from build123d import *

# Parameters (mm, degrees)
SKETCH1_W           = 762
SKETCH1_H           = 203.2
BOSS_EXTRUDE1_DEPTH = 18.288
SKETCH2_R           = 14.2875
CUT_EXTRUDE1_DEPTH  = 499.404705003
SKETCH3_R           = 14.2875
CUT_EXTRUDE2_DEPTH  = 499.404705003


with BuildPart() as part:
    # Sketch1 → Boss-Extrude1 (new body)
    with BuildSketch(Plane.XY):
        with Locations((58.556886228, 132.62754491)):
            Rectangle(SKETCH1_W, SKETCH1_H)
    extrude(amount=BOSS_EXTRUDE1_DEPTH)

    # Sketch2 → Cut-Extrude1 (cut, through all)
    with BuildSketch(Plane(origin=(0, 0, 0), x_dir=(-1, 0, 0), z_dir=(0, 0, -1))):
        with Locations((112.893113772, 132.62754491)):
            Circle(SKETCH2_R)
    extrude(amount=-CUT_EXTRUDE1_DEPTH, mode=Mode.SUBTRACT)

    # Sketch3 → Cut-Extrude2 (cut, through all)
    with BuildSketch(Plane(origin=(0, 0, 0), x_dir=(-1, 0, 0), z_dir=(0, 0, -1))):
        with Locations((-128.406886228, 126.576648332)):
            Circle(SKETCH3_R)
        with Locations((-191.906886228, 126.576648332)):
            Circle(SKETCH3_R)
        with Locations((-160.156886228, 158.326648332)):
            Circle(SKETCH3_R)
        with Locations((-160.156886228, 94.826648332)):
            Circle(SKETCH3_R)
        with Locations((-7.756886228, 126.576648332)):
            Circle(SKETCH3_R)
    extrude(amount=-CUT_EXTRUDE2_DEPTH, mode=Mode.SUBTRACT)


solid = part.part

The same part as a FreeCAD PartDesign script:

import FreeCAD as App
import Part
import Sketcher

V = App.Vector
Q = App.Units.Quantity


def add_polygon(sketch, points):
    """Adds a closed chain of lines whose ends are joined by coincident constraints."""
    first, n = sketch.GeometryCount, len(points)
    for a, b in zip(points, points[1:] + points[:1]):
        sketch.addGeometry(Part.LineSegment(App.Vector(*a, 0), App.Vector(*b, 0)), False)
    for i in range(n):
        sketch.addConstraint(Sketcher.Constraint("Coincident", first + i, 2, first + (i + 1) % n, 1))

doc = App.newDocument("Part")
body = doc.addObject("PartDesign::Body", "Body")

sketch1 = doc.addObject("Sketcher::SketchObject", "Sketch")
body.addObject(sketch1)
sketch1.AttachmentSupport = (doc.XY_Plane, [""])
sketch1.MapMode = "FlatFace"
add_polygon(sketch1, [(-322, 234), (-322, 31), (440, 31), (440, 234)])
sketch1.addConstraint([
    Sketcher.Constraint("Vertical", 0),
    Sketcher.Constraint("Horizontal", 1),
    Sketcher.Constraint("Vertical", 2),
    Sketcher.Constraint("Horizontal", 3),
    Sketcher.Constraint("DistanceX", 1, 1, 1, 2, Q("30 in")),
    Sketcher.Constraint("DistanceY", 0, 2, 0, 1, Q("8 in")),
    Sketcher.Constraint("DistanceX", 0, 2, -1, 1, 322.443114),
    Sketcher.Constraint("DistanceY", -1, 1, 0, 2, 31.027545),
])
pad1 = doc.addObject("PartDesign::Pad", "Pad")
body.addObject(pad1)
pad1.Profile = sketch1
pad1.Length = Q("0.72 in")

sketch2 = doc.addObject("Sketcher::SketchObject", "Sketch001")
body.addObject(sketch2)
sketch2.AttachmentSupport = (doc.XY_Plane, [""])
sketch2.MapMode = "FlatFace"
sketch2.addGeometry(Part.Circle(V(-113, 133, 0), V(0, 0, 1), 14), False)
sketch2.addConstraint([
    Sketcher.Constraint("Diameter", 0, Q("1.125 in")),
    Sketcher.Constraint("DistanceX", 0, 3, -1, 1, 112.893114),
    Sketcher.Constraint("DistanceY", -1, 1, 0, 3, 132.627545),
])
pocket1 = doc.addObject("PartDesign::Pocket", "Pocket")
body.addObject(pocket1)
pocket1.Profile = sketch2
pocket1.Type = "ThroughAll"
pocket1.Reversed = True

sketch3 = doc.addObject("Sketcher::SketchObject", "Sketch002")
body.addObject(sketch3)
sketch3.AttachmentSupport = (doc.XY_Plane, [""])
sketch3.MapMode = "FlatFace"
sketch3.addGeometry([
    Part.Circle(V(128, 127, 0), V(0, 0, 1), 14),
    Part.Circle(V(192, 127, 0), V(0, 0, 1), 14),
    Part.Circle(V(160, 158, 0), V(0, 0, 1), 14),
    Part.Circle(V(160, 95, 0), V(0, 0, 1), 14),
    Part.Circle(V(8, 127, 0), V(0, 0, 1), 14),
], False)
sketch3.addConstraint([
    Sketcher.Constraint("Equal", 0, 1),
    Sketcher.Constraint("Equal", 1, 2),
    Sketcher.Constraint("Equal", 2, 3),
    Sketcher.Constraint("Equal", 3, 4),
    Sketcher.Constraint("Horizontal", 0, 3, 1, 3),
    Sketcher.Constraint("Horizontal", 1, 3, 4, 3),
    Sketcher.Constraint("Vertical", 2, 3, 3, 3),
    Sketcher.Constraint("Diameter", 0, Q("1.125 in")),
    Sketcher.Constraint("DistanceX", 4, 3, 2, 3, Q("6 in")),
    Sketcher.Constraint("DistanceX", 0, 3, 1, 3, Q("2.5 in")),
    Sketcher.Constraint("DistanceY", 3, 3, 2, 3, Q("2.5 in")),
    Sketcher.Constraint("DistanceX", 0, 3, 2, 3, Q("1.25 in")),
    Sketcher.Constraint("DistanceY", 0, 3, 2, 3, Q("1.25 in")),
    Sketcher.Constraint("DistanceY", -1, 1, 0, 3, 126.576648),
    Sketcher.Constraint("DistanceX", -1, 1, 0, 3, 128.406886),
])
pocket2 = doc.addObject("PartDesign::Pocket", "Pocket001")
body.addObject(pocket2)
pocket2.Profile = sketch3
pocket2.Type = "ThroughAll"
pocket2.Reversed = True

doc.recompute()
